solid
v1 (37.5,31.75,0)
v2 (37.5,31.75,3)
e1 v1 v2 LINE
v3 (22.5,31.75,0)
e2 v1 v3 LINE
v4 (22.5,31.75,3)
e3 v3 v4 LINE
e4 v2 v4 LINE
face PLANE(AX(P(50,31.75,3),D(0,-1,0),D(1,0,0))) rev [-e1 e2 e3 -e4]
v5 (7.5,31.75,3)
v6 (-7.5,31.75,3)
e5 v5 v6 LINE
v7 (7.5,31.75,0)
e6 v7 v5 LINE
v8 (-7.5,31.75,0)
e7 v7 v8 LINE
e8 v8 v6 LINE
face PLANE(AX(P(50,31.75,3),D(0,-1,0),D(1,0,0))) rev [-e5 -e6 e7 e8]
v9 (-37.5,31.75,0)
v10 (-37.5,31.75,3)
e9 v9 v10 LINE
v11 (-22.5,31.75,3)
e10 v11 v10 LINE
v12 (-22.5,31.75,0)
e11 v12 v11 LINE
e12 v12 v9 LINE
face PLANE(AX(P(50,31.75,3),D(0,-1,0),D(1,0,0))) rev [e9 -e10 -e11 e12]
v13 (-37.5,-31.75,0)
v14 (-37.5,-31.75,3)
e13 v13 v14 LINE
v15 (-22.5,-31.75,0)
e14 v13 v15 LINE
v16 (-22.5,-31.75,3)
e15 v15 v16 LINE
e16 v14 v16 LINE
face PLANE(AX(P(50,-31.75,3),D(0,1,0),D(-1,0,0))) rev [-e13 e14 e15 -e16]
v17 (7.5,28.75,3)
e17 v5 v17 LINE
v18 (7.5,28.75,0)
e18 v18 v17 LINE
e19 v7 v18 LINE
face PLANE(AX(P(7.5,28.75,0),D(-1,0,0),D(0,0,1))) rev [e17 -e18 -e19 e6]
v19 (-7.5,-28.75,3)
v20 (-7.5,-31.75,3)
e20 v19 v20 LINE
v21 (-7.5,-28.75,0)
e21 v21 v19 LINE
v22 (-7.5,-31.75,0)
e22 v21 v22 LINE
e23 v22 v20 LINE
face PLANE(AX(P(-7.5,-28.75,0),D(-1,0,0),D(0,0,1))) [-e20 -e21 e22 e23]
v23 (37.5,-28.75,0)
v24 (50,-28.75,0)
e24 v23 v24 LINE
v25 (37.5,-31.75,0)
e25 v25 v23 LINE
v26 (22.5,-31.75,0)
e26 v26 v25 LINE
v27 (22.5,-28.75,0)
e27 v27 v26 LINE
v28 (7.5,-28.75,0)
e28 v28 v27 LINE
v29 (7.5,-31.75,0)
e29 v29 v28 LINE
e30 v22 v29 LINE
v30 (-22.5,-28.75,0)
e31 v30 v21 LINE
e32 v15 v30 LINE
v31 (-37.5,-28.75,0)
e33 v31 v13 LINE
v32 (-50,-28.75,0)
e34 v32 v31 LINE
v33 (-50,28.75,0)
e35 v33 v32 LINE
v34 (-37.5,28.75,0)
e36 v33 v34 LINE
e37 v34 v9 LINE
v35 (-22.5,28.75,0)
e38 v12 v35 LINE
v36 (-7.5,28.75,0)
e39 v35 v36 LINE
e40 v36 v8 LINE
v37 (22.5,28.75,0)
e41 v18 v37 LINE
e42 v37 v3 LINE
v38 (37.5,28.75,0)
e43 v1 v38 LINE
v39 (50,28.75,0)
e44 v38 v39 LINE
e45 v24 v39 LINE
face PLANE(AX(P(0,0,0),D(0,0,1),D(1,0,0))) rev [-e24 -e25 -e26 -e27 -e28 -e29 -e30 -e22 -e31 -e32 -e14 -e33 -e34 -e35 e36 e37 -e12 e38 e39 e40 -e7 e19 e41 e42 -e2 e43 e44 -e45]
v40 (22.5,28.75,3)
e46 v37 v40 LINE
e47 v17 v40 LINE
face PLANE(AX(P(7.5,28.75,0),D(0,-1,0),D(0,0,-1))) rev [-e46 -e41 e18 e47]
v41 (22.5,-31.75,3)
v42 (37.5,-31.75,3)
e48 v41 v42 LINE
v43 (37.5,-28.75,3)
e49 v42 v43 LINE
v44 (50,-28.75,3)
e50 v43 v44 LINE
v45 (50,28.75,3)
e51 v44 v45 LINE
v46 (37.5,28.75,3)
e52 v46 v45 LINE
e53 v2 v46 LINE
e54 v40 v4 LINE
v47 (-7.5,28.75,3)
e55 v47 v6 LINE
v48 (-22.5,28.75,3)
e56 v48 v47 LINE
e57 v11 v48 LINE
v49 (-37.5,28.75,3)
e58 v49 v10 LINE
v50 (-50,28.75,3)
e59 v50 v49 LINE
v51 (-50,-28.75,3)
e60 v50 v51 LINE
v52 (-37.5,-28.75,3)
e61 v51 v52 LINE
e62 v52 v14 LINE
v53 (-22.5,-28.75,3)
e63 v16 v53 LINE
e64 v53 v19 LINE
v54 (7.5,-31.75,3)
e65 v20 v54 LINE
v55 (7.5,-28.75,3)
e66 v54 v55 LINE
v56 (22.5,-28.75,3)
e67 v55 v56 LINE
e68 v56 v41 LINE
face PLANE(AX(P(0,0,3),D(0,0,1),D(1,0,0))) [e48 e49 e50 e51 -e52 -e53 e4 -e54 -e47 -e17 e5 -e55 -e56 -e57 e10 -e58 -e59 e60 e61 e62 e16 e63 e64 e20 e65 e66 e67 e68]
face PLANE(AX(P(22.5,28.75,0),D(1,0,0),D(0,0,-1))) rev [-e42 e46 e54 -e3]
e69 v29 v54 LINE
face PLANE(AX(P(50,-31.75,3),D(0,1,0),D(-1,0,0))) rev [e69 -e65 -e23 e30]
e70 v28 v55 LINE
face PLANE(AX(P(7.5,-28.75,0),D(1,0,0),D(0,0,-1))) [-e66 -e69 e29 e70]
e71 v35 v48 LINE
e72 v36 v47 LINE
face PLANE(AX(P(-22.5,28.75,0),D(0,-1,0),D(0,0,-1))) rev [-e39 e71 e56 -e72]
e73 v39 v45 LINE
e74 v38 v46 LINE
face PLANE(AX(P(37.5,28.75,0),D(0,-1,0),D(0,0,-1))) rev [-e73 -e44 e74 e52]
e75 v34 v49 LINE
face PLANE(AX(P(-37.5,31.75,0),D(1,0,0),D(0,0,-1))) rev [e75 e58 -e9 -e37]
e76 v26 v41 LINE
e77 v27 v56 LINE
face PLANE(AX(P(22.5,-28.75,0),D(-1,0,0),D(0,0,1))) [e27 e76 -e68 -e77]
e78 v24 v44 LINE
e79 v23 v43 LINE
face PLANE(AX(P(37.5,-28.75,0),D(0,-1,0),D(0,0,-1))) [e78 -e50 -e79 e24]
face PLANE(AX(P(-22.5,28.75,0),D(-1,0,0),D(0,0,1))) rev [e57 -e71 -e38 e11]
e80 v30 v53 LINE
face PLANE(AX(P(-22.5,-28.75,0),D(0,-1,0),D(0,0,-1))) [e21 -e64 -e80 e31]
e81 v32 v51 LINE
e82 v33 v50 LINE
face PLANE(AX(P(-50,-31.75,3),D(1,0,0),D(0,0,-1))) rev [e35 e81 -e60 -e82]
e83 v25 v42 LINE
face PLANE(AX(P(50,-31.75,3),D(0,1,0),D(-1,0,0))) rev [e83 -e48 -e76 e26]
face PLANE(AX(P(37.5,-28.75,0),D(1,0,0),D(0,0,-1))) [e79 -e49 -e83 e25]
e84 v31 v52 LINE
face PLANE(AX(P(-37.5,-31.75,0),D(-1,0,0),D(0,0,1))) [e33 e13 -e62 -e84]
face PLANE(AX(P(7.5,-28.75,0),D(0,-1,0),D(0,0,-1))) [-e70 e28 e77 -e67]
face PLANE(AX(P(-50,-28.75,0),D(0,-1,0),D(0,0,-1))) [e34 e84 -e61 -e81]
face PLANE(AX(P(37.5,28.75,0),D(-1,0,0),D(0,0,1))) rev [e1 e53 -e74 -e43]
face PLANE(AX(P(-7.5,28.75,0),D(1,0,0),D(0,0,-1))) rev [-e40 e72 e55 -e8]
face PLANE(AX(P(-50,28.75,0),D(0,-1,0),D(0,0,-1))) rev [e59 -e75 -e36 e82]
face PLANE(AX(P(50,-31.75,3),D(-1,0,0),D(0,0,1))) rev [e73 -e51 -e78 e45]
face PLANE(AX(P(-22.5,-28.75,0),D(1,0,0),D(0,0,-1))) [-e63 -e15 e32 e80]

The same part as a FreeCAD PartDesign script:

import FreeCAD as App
import Part
import Sketcher


def add_polygon(sketch, points):
    """Adds a closed chain of lines whose ends are joined by coincident constraints."""
    first, n = sketch.GeometryCount, len(points)
    for a, b in zip(points, points[1:] + points[:1]):
        sketch.addGeometry(Part.LineSegment(App.Vector(*a, 0), App.Vector(*b, 0)), False)
    for i in range(n):
        sketch.addConstraint(Sketcher.Constraint("Coincident", first + i, 2, first + (i + 1) % n, 1))

doc = App.newDocument("Part")
body = doc.addObject("PartDesign::Body", "Body")

sketch1 = body.newObject("Sketcher::SketchObject", "Sketch")
sketch1.AttachmentSupport = (doc.getObject("XY_Plane"), [""])
sketch1.MapMode = "FlatFace"
add_polygon(sketch1, [(-50, 31.75), (-50, -31.75), (50, -31.75), (50, 31.75)])
sketch1.addConstraint(Sketcher.Constraint("Vertical", 0))
sketch1.addConstraint(Sketcher.Constraint("Horizontal", 1))
sketch1.addConstraint(Sketcher.Constraint("Vertical", 2))
sketch1.addConstraint(Sketcher.Constraint("Horizontal", 3))
sketch1.addConstraint(Sketcher.Constraint("Symmetric", 0, 2, 2, 2, -1, 1))
sketch1.addConstraint(Sketcher.Constraint("DistanceX", 1, 1, 1, 2, 100.0))
sketch1.addConstraint(Sketcher.Constraint("DistanceY", 0, 2, 0, 1, 63.5))
pad1 = body.newObject("PartDesign::Pad", "Pad")
pad1.Profile = sketch1
pad1.Length = 3

sketch2 = body.newObject("Sketcher::SketchObject", "Sketch001")
sketch2.AttachmentSupport = (doc.getObject("XY_Plane"), [""])
sketch2.MapMode = "FlatFace"
sketch2.AttachmentOffset = App.Placement(App.Vector(0, 0, 3), App.Rotation())
add_polygon(sketch2, [(-50, 31.75), (-50, 28.75), (-37.5, 28.75), (-37.5, 31.75)])
add_polygon(sketch2, [(-22.5, 31.75), (-22.5, 28.75), (-7.5, 28.75), (-7.5, 31.75)])
add_polygon(sketch2, [(7.5, 31.75), (7.5, 28.75), (22.5, 28.75), (22.5, 31.75)])
add_polygon(sketch2, [(37.5, 31.75), (37.5, 28.75), (50, 28.75), (50, 31.75)])
sketch2.addConstraint(Sketcher.Constraint("Vertical", 0))
sketch2.addConstraint(Sketcher.Constraint("Horizontal", 1))
sketch2.addConstraint(Sketcher.Constraint("Vertical", 2))
sketch2.addConstraint(Sketcher.Constraint("Horizontal", 3))
sketch2.addConstraint(Sketcher.Constraint("Vertical", 4))
sketch2.addConstraint(Sketcher.Constraint("Horizontal", 5))
sketch2.addConstraint(Sketcher.Constraint("Vertical", 6))
sketch2.addConstraint(Sketcher.Constraint("Horizontal", 7))
sketch2.addConstraint(Sketcher.Constraint("Vertical", 8))
sketch2.addConstraint(Sketcher.Constraint("Horizontal", 9))
sketch2.addConstraint(Sketcher.Constraint("Vertical", 10))
sketch2.addConstraint(Sketcher.Constraint("Horizontal", 11))
sketch2.addConstraint(Sketcher.Constraint("Vertical", 12))
sketch2.addConstraint(Sketcher.Constraint("Horizontal", 13))
sketch2.addConstraint(Sketcher.Constraint("Vertical", 14))
sketch2.addConstraint(Sketcher.Constraint("Horizontal", 15))
sketch2.addConstraint(Sketcher.Constraint("Symmetric", 5, 2, 8, 2, -2))
sketch2.addConstraint(Sketcher.Constraint("Symmetric", 7, 2, 10, 2, -2))
sketch2.addConstraint(Sketcher.Constraint("Symmetric", 1, 2, 12, 2, -2))
sketch2.addConstraint(Sketcher.Constraint("Symmetric", 3, 2, 14, 2, -2))
sketch2.addConstraint(Sketcher.Constraint("Horizontal", 1, 2, 4, 2))
sketch2.addConstraint(Sketcher.Constraint("Horizontal", 3, 2, 6, 2))
sketch2.addConstraint(Sketcher.Constraint("DistanceX", 5, 1, 5, 2, 15.0))
sketch2.addConstraint(Sketcher.Constraint("DistanceY", 0, 2, 0, 1, 3.0))
sketch2.addConstraint(Sketcher.Constraint("DistanceX", 1, 1, 1, 2, 12.5))
sketch2.addConstraint(Sketcher.Constraint("DistanceX", 0, 2, -1, 1, 50.0))
sketch2.addConstraint(Sketcher.Constraint("DistanceX", 1, 2, 4, 2, 15.0))
sketch2.addConstraint(Sketcher.Constraint("DistanceY", -1, 1, 0, 2, 28.75))
pocket1 = body.newObject("PartDesign::Pocket", "Pocket")
pocket1.Profile = sketch2
pocket1.Type = "ThroughAll"
doc.recompute()

mirrored = body.newObject("PartDesign::Mirrored", "Mirrored")
mirrored.Originals = [pocket1]
mirrored.MirrorPlane = (doc.getObject("XZ_Plane"), [""])
body.Tip = mirrored

doc.recompute()
